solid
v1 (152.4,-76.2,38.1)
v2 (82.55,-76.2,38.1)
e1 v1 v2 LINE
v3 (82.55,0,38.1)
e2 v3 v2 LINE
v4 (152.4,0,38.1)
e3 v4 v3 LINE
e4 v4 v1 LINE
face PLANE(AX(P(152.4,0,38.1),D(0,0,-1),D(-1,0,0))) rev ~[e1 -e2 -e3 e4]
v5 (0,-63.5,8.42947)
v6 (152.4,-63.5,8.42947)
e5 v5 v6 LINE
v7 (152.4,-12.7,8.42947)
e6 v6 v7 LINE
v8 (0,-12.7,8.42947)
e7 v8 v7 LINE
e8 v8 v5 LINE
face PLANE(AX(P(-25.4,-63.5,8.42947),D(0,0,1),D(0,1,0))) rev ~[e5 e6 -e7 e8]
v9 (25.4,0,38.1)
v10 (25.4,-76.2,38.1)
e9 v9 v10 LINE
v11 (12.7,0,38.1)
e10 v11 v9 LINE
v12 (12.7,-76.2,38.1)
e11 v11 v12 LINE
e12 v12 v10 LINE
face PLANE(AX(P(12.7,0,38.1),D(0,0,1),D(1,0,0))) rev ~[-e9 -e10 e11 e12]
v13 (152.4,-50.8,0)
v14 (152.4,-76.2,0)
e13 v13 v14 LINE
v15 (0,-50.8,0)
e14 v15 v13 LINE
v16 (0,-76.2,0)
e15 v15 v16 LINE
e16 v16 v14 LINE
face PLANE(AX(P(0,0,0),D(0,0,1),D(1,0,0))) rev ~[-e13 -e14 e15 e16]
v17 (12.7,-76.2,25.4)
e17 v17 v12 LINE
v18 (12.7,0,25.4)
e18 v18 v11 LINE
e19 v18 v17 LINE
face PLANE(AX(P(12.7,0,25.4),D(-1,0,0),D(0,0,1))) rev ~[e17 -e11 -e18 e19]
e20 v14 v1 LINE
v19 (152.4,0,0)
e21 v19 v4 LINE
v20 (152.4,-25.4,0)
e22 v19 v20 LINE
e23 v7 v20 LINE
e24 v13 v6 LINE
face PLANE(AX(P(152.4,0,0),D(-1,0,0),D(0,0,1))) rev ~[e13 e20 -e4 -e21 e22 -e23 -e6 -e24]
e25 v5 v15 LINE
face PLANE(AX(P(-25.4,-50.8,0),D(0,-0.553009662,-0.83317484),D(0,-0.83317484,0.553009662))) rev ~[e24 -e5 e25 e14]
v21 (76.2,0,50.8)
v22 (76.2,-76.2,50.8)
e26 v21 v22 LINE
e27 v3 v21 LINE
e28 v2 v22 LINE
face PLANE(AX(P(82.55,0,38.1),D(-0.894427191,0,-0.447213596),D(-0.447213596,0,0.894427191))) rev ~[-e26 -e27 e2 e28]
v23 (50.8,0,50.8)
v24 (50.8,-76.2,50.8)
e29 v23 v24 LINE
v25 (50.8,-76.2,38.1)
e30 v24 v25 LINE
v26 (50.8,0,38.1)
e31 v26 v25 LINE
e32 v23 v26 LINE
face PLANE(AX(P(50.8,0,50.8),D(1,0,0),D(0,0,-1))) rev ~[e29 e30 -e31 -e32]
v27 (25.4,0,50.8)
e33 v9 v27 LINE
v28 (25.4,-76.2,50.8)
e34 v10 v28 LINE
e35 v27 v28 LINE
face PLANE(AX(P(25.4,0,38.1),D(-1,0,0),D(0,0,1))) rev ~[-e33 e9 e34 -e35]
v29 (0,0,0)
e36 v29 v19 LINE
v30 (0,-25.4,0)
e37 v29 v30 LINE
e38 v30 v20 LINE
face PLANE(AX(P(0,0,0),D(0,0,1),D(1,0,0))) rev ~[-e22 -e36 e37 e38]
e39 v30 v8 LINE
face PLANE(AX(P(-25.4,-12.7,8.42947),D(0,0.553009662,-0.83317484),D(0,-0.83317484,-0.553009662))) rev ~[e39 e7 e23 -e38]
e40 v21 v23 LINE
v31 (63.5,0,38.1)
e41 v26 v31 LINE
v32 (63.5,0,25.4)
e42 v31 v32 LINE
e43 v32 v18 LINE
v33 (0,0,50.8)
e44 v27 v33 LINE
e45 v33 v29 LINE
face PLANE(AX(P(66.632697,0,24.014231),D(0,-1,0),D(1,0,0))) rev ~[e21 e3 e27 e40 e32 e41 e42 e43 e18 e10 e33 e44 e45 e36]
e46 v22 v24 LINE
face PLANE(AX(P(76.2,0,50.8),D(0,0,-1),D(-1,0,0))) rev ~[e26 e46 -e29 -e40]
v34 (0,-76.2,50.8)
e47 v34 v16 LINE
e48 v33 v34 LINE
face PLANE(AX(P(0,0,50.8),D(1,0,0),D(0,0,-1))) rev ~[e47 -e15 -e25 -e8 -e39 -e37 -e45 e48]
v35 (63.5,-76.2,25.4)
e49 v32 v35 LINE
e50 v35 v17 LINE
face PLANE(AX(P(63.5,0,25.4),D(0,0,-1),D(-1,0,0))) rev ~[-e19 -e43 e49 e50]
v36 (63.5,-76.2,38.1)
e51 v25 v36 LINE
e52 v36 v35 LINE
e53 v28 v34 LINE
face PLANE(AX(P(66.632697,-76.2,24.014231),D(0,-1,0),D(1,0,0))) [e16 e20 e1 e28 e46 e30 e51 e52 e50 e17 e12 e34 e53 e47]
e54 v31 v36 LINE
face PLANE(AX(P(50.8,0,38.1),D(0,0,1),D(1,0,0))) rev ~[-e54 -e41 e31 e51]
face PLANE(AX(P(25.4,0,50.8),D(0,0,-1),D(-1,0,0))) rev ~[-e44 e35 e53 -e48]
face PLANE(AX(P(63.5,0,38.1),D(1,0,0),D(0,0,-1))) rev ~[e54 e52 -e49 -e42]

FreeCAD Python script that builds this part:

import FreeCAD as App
import Part
import Sketcher
Q = App.Units.Quantity

doc = App.newDocument("Part")
body = doc.addObject("PartDesign::Body", "Body")

# Sketch on XZ plane
sketch1 = body.newObject("Sketcher::SketchObject", "Sketch")
sketch1.AttachmentSupport = (doc.getObject("XZ_Plane"), [""])
sketch1.MapMode = "FlatFace"
sketch1.addGeometry([
    Part.LineSegment(App.Vector(0, 51, 0), App.Vector(0, 0, 0)),  # 0
    Part.LineSegment(App.Vector(0, 0, 0), App.Vector(152, 0, 0)),  # 1
    Part.LineSegment(App.Vector(152, 0, 0), App.Vector(152, 38, 0)),  # 2
    Part.LineSegment(App.Vector(152, 38, 0), App.Vector(83, 38, 0)),  # 3
    Part.LineSegment(App.Vector(83, 38, 0), App.Vector(76, 51, 0)),  # 4
    Part.LineSegment(App.Vector(76, 51, 0), App.Vector(51, 51, 0)),  # 5
    Part.LineSegment(App.Vector(51, 51, 0), App.Vector(51, 38, 0)),  # 6
    Part.LineSegment(App.Vector(51, 38, 0), App.Vector(64, 38, 0)),  # 7
    Part.LineSegment(App.Vector(64, 38, 0), App.Vector(64, 25, 0)),  # 8
    Part.LineSegment(App.Vector(64, 25, 0), App.Vector(13, 25, 0)),  # 9
    Part.LineSegment(App.Vector(13, 25, 0), App.Vector(13, 38, 0)),  # 10
    Part.LineSegment(App.Vector(13, 38, 0), App.Vector(25, 38, 0)),  # 11
    Part.LineSegment(App.Vector(25, 38, 0), App.Vector(25, 51, 0)),  # 12
    Part.LineSegment(App.Vector(25, 51, 0), App.Vector(0, 51, 0)),  # 13
], False)
sketch1.addConstraint([
    Sketcher.Constraint("Coincident", 0, 2, 1, 1),
    Sketcher.Constraint("Coincident", 1, 2, 2, 1),
    Sketcher.Constraint("Coincident", 2, 2, 3, 1),
    Sketcher.Constraint("Coincident", 3, 2, 4, 1),
    Sketcher.Constraint("Coincident", 4, 2, 5, 1),
    Sketcher.Constraint("Coincident", 5, 2, 6, 1),
    Sketcher.Constraint("Coincident", 6, 2, 7, 1),
    Sketcher.Constraint("Coincident", 7, 2, 8, 1),
    Sketcher.Constraint("Coincident", 8, 2, 9, 1),
    Sketcher.Constraint("Coincident", 9, 2, 10, 1),
    Sketcher.Constraint("Coincident", 10, 2, 11, 1),
    Sketcher.Constraint("Coincident", 11, 2, 12, 1),
    Sketcher.Constraint("Coincident", 12, 2, 13, 1),
    Sketcher.Constraint("Coincident", 13, 2, 0, 1),
    Sketcher.Constraint("Vertical", 0),
    Sketcher.Constraint("Horizontal", 1),
    Sketcher.Constraint("Vertical", 2),
    Sketcher.Constraint("Horizontal", 3),
    Sketcher.Constraint("Horizontal", 5),
    Sketcher.Constraint("Vertical", 6),
    Sketcher.Constraint("Horizontal", 7),
    Sketcher.Constraint("Vertical", 8),
    Sketcher.Constraint("Horizontal", 9),
    Sketcher.Constraint("Vertical", 10),
    Sketcher.Constraint("Horizontal", 11),
    Sketcher.Constraint("Vertical", 12),
    Sketcher.Constraint("Horizontal", 13),
    Sketcher.Constraint("Coincident", 0, 2, -1, 1),
    Sketcher.Constraint("Horizontal", 3, 2, 6, 2),
    Sketcher.Constraint("Horizontal", 7, 2, 10, 2),
    Sketcher.Constraint("Horizontal", 5, 2, 12, 2),
    Sketcher.Constraint("Equal", 7, 11),
    Sketcher.Constraint("Equal", 5, 13),
    Sketcher.Constraint("Equal", 9, 0),
    Sketcher.Constraint("Equal", 11, 6),
    Sketcher.Constraint("Equal", 6, 8),
    Sketcher.Constraint("DistanceX", 1, 1, 1, 2, Q("6 in")),
    Sketcher.Constraint("DistanceX", 5, 2, 5, 1, Q("1 in")),
    Sketcher.Constraint("DistanceX", 9, 2, 9, 1, Q("2 in")),
    Sketcher.Constraint("DistanceX", 7, 1, 7, 2, Q("0.5 in")),
    Sketcher.Constraint("DistanceX", 3, 2, 3, 1, Q("2.75 in")),
])
pad1 = body.newObject("PartDesign::Pad", "Pad")
pad1.Profile = sketch1
pad1.Length = Q("3 in")

# Sketch on YZ plane
sketch2 = body.newObject("Sketcher::SketchObject", "Sketch001")
sketch2.AttachmentSupport = (doc.getObject("YZ_Plane"), [""])
sketch2.MapMode = "FlatFace"
sketch2.AttachmentOffset = App.Placement(App.Vector(0, 0, -1 * 25.4), App.Rotation())
sketch2.addGeometry([
    Part.LineSegment(App.Vector(-64, 8, 0), App.Vector(-13, 8, 0)),
    Part.LineSegment(App.Vector(-13, 8, 0), App.Vector(-25, 0, 0)),
    Part.LineSegment(App.Vector(-25, 0, 0), App.Vector(-51, 0, 0)),
    Part.LineSegment(App.Vector(-51, 0, 0), App.Vector(-64, 8, 0)),
], False)
sketch2.addConstraint([
    Sketcher.Constraint("Coincident", 0, 2, 1, 1),
    Sketcher.Constraint("Coincident", 1, 2, 2, 1),
    Sketcher.Constraint("Coincident", 2, 2, 3, 1),
    Sketcher.Constraint("Coincident", 3, 2, 0, 1),
    Sketcher.Constraint("Horizontal", 0),
    Sketcher.Constraint("Horizontal", 2),
    Sketcher.Constraint("PointOnObject", 1, 2, -1),
    Sketcher.Constraint("Equal", 1, 3),
    Sketcher.Constraint("DistanceX", 0, 1, 0, 2, Q("2 in")),
    Sketcher.Constraint("DistanceX", 2, 2, 2, 1, Q("1 in")),
    Sketcher.Constraint("DistanceX", 1, 2, -1, 1, Q("1 in")),
    Sketcher.Constraint("Distance", 1, 15.242899),
])
pocket1 = body.newObject("PartDesign::Pocket", "Pocket")
pocket1.Profile = sketch2
pocket1.Length = Q("7.4 in")
pocket1.Reversed = True

doc.recompute()
